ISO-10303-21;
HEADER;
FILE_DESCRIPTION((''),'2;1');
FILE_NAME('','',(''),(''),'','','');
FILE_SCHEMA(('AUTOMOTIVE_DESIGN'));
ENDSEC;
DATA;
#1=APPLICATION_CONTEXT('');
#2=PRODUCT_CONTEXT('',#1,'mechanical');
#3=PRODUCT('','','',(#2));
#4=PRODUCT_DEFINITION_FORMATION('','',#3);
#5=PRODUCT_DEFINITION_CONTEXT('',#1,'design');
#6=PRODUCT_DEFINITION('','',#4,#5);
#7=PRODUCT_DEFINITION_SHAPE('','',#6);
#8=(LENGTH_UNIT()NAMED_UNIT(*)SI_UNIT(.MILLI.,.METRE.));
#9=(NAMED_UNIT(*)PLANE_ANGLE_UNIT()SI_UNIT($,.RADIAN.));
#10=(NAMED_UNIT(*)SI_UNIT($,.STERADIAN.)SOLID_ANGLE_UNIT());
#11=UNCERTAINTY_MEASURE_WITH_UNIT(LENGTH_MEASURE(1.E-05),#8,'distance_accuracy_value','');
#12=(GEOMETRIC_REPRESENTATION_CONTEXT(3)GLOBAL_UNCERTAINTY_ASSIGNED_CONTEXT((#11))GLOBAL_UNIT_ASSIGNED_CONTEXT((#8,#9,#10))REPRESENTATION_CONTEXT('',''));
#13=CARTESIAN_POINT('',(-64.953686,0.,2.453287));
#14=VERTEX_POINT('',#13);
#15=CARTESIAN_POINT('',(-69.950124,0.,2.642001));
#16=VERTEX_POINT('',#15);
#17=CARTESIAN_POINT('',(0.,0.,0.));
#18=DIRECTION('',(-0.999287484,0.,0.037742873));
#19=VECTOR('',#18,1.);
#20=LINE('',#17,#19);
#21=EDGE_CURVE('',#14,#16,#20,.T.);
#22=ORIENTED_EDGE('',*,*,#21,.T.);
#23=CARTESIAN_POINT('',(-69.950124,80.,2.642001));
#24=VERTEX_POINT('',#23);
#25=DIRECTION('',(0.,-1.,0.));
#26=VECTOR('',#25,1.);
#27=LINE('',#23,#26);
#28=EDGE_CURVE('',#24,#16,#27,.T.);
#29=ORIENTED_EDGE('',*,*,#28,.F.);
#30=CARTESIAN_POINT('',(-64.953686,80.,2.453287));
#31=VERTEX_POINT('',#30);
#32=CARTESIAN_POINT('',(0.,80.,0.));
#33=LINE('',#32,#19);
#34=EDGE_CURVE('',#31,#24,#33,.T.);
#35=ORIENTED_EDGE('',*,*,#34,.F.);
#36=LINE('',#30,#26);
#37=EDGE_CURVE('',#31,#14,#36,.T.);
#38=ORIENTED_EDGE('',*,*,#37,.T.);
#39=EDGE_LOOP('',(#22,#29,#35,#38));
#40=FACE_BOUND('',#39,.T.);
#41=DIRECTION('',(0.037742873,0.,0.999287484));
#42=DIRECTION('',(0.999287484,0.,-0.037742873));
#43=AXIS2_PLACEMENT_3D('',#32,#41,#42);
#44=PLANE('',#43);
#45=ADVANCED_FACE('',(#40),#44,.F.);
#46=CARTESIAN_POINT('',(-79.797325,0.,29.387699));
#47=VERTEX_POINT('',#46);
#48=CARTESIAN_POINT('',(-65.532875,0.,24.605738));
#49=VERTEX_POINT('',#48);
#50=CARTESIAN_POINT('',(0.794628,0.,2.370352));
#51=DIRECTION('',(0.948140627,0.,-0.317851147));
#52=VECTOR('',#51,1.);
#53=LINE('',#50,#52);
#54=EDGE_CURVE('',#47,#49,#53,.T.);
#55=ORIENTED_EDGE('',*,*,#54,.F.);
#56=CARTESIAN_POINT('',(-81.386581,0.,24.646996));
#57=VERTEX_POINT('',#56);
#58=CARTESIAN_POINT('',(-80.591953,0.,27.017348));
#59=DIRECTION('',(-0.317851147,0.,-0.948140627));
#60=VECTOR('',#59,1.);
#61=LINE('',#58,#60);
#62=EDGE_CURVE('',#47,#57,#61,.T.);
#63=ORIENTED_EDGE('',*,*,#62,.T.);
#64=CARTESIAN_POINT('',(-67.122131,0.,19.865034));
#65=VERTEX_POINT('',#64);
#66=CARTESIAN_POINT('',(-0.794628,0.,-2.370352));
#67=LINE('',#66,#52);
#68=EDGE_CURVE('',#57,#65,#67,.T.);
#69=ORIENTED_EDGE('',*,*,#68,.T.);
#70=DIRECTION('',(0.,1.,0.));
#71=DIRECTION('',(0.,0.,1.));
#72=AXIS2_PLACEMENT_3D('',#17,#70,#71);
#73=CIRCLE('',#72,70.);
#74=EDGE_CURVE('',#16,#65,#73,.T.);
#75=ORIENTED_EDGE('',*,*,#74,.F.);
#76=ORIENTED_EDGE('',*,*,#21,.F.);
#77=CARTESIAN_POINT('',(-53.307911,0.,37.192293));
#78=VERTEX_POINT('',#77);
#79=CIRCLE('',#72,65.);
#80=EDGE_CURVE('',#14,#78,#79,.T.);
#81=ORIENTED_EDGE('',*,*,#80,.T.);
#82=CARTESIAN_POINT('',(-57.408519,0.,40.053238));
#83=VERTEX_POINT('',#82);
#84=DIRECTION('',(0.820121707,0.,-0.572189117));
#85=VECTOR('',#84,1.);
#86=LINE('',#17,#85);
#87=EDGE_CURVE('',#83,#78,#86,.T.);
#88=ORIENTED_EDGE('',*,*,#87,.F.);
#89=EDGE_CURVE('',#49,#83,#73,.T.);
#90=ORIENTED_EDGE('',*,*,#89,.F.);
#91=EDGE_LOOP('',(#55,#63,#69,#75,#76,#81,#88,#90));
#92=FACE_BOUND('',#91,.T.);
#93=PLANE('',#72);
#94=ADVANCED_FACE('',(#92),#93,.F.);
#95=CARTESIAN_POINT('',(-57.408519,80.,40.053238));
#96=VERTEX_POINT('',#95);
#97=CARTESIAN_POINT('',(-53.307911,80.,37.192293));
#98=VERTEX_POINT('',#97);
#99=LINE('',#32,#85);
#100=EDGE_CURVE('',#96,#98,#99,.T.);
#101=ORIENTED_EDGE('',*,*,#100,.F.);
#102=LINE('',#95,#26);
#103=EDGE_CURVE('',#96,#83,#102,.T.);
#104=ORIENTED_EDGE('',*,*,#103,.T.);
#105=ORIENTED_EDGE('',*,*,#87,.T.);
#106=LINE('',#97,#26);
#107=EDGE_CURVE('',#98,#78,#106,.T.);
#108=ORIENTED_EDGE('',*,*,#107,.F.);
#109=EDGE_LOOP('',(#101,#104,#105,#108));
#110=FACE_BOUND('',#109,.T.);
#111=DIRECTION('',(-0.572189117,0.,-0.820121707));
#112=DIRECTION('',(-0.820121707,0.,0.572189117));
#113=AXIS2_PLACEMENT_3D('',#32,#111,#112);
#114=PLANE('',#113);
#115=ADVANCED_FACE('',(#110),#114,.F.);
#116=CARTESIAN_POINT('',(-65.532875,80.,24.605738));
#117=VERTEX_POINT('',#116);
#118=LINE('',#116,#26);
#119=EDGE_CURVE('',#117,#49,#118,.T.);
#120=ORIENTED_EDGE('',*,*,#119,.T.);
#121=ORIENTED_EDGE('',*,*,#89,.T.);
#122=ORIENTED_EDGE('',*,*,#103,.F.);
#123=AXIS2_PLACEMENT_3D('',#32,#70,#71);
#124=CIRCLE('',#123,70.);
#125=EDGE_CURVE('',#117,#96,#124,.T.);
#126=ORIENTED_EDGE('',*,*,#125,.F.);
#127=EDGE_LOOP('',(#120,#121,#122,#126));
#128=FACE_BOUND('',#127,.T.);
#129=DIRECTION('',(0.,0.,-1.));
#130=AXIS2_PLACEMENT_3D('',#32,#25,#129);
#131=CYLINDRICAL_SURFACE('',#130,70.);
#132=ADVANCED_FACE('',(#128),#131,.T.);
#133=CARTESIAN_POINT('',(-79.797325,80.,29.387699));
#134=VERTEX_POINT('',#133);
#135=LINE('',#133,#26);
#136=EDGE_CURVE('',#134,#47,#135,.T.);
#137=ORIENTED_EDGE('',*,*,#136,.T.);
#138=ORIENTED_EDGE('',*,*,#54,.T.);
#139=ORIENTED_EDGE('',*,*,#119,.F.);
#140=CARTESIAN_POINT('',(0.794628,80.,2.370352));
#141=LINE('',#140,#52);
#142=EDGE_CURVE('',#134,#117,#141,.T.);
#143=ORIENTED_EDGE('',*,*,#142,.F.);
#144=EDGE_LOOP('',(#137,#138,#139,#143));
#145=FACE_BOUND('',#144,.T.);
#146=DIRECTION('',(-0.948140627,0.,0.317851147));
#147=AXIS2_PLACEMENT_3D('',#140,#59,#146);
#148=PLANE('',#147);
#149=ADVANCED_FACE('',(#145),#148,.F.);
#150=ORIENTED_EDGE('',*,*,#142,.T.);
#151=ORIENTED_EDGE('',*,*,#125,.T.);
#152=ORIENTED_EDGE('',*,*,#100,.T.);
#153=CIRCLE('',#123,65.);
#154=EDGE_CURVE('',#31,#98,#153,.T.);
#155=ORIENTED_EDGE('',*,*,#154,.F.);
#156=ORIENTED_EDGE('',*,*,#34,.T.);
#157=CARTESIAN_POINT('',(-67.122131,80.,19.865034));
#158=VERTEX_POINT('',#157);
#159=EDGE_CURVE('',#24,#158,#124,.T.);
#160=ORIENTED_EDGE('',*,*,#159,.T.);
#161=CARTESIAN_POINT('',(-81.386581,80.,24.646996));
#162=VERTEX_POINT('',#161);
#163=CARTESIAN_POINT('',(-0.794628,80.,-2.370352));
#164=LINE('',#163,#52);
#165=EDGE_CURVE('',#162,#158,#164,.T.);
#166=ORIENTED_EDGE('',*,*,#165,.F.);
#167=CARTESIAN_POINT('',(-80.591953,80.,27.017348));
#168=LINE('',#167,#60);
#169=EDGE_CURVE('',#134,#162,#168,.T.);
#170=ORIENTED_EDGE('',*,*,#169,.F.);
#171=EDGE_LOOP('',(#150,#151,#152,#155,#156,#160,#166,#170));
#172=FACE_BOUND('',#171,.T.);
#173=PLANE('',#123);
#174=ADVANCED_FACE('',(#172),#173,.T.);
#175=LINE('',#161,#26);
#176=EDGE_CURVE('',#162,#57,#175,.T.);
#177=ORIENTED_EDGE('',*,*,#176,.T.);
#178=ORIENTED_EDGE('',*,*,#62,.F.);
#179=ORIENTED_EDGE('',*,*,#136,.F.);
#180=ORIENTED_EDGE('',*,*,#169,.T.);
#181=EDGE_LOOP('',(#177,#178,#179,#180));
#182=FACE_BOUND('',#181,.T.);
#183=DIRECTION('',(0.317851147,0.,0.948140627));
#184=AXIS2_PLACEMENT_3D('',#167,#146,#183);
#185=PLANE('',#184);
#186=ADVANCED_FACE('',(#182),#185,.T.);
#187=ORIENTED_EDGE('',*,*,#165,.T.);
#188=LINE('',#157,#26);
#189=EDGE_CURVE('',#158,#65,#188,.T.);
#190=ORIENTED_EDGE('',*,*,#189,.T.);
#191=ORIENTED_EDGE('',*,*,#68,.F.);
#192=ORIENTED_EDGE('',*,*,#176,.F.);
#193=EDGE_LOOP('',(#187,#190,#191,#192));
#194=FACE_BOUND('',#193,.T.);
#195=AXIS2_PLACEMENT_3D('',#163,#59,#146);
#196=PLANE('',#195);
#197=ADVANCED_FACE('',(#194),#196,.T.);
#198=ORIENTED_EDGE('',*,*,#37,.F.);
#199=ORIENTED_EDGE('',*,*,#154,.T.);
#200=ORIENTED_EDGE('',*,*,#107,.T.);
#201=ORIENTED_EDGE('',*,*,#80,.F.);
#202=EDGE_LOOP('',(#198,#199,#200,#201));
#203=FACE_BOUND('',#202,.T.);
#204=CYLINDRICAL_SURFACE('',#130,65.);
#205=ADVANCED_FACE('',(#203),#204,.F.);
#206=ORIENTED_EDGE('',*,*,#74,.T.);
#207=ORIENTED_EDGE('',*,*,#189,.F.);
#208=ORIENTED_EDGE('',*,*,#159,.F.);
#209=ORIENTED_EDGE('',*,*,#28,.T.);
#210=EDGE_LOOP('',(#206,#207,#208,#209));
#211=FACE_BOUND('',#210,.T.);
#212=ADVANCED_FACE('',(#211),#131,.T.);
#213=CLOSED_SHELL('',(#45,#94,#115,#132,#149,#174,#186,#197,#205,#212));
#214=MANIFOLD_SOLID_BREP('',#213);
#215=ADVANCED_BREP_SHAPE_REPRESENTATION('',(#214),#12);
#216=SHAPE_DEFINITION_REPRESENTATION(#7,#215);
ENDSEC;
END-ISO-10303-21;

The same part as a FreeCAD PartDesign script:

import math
import FreeCAD as App
import Part
import Sketcher
from FreeCAD import Vector

doc = App.newDocument("Part")
body = doc.addObject("PartDesign::Body", "Body")

sketch1 = doc.addObject("Sketcher::SketchObject", "Sketch")
body.addObject(sketch1)
sketch1.AttachmentSupport = (doc.XZ_Plane, [""])
sketch1.MapMode = "FlatFace"
sketch1.addGeometry(Part.LineSegment(Vector(-79.8, 29.4, 0), Vector(-65.5, 24.6, 0)), False)
sketch1.addGeometry(Part.ArcOfCircle(Part.Circle(Vector(0, 0, 0), Vector(0, 0, 1), 70), math.radians(145.1), math.radians(159.42)), False)
sketch1.addGeometry(Part.LineSegment(Vector(-57.4, 40.1, 0), Vector(-53.3, 37.2, 0)), False)
sketch1.addGeometry(Part.ArcOfCircle(Part.Circle(Vector(0, 0, 0), Vector(0, 0, 1), 65), math.radians(145), math.radians(178)), False)
sketch1.addGeometry(Part.LineSegment(Vector(-65, 2.5, 0), Vector(-70, 2.6, 0)), False)
sketch1.addGeometry(Part.ArcOfCircle(Part.Circle(Vector(0, 0, 0), Vector(0, 0, 1), 70), math.radians(163.51), math.radians(177.84)), False)
sketch1.addGeometry(Part.LineSegment(Vector(-67.1, 19.9, 0), Vector(-81.4, 24.6, 0)), False)
sketch1.addGeometry(Part.LineSegment(Vector(-81.4, 24.6, 0), Vector(-79.8, 29.4, 0)), False)
sketch1.addConstraint(Sketcher.Constraint("Coincident", 0, 2, 1, 2))
sketch1.addConstraint(Sketcher.Constraint("Coincident", 1, 1, 2, 1))
sketch1.addConstraint(Sketcher.Constraint("Coincident", 2, 2, 3, 1))
sketch1.addConstraint(Sketcher.Constraint("Coincident", 3, 2, 4, 1))
sketch1.addConstraint(Sketcher.Constraint("Coincident", 4, 2, 5, 2))
sketch1.addConstraint(Sketcher.Constraint("Coincident", 5, 1, 6, 1))
sketch1.addConstraint(Sketcher.Constraint("Coincident", 6, 2, 7, 1))
sketch1.addConstraint(Sketcher.Constraint("Coincident", 7, 2, 0, 1))
sketch1.addConstraint(Sketcher.Constraint("Coincident", 1, 3, -1, 1))
sketch1.addConstraint(Sketcher.Constraint("Coincident", 3, 3, -1, 1))
sketch1.addConstraint(Sketcher.Constraint("Coincident", 5, 3, -1, 1))
sketch1.addConstraint(Sketcher.Constraint("Equal", 1, 5))
sketch1.addConstraint(Sketcher.Constraint("Parallel", 0, 6))
sketch1.addConstraint(Sketcher.Constraint("Perpendicular", 6, 7))
sketch1.addConstraint(Sketcher.Constraint("Equal", 0, 6))
sketch1.addConstraint(Sketcher.Constraint("Equal", 4, 7))
sketch1.addConstraint(Sketcher.Constraint("Radius", 1, 70.0))
sketch1.addConstraint(Sketcher.Constraint("Radius", 3, 65.0))
sketch1.addConstraint(Sketcher.Constraint("DistanceY", -1, 1, 4, 2, 2.642001))
sketch1.addConstraint(Sketcher.Constraint("DistanceY", -1, 1, 7, 2, 29.387699))
sketch1.addConstraint(Sketcher.Constraint("DistanceY", 0, 2, 1, 1, 15.447501))
sketch1.addConstraint(Sketcher.Constraint("DistanceX", 1, 1, -1, 1, 57.408519))
sketch1.addConstraint(Sketcher.Constraint("DistanceX", 2, 2, -1, 1, 53.307911))
sketch1.addConstraint(Sketcher.Constraint("DistanceX", 0, 2, 3, 2, 0.579188))
pad1 = doc.addObject("PartDesign::Pad", "Pad")
body.addObject(pad1)
pad1.Profile = sketch1
pad1.Length = 80
pad1.Reversed = True

doc.recompute()
